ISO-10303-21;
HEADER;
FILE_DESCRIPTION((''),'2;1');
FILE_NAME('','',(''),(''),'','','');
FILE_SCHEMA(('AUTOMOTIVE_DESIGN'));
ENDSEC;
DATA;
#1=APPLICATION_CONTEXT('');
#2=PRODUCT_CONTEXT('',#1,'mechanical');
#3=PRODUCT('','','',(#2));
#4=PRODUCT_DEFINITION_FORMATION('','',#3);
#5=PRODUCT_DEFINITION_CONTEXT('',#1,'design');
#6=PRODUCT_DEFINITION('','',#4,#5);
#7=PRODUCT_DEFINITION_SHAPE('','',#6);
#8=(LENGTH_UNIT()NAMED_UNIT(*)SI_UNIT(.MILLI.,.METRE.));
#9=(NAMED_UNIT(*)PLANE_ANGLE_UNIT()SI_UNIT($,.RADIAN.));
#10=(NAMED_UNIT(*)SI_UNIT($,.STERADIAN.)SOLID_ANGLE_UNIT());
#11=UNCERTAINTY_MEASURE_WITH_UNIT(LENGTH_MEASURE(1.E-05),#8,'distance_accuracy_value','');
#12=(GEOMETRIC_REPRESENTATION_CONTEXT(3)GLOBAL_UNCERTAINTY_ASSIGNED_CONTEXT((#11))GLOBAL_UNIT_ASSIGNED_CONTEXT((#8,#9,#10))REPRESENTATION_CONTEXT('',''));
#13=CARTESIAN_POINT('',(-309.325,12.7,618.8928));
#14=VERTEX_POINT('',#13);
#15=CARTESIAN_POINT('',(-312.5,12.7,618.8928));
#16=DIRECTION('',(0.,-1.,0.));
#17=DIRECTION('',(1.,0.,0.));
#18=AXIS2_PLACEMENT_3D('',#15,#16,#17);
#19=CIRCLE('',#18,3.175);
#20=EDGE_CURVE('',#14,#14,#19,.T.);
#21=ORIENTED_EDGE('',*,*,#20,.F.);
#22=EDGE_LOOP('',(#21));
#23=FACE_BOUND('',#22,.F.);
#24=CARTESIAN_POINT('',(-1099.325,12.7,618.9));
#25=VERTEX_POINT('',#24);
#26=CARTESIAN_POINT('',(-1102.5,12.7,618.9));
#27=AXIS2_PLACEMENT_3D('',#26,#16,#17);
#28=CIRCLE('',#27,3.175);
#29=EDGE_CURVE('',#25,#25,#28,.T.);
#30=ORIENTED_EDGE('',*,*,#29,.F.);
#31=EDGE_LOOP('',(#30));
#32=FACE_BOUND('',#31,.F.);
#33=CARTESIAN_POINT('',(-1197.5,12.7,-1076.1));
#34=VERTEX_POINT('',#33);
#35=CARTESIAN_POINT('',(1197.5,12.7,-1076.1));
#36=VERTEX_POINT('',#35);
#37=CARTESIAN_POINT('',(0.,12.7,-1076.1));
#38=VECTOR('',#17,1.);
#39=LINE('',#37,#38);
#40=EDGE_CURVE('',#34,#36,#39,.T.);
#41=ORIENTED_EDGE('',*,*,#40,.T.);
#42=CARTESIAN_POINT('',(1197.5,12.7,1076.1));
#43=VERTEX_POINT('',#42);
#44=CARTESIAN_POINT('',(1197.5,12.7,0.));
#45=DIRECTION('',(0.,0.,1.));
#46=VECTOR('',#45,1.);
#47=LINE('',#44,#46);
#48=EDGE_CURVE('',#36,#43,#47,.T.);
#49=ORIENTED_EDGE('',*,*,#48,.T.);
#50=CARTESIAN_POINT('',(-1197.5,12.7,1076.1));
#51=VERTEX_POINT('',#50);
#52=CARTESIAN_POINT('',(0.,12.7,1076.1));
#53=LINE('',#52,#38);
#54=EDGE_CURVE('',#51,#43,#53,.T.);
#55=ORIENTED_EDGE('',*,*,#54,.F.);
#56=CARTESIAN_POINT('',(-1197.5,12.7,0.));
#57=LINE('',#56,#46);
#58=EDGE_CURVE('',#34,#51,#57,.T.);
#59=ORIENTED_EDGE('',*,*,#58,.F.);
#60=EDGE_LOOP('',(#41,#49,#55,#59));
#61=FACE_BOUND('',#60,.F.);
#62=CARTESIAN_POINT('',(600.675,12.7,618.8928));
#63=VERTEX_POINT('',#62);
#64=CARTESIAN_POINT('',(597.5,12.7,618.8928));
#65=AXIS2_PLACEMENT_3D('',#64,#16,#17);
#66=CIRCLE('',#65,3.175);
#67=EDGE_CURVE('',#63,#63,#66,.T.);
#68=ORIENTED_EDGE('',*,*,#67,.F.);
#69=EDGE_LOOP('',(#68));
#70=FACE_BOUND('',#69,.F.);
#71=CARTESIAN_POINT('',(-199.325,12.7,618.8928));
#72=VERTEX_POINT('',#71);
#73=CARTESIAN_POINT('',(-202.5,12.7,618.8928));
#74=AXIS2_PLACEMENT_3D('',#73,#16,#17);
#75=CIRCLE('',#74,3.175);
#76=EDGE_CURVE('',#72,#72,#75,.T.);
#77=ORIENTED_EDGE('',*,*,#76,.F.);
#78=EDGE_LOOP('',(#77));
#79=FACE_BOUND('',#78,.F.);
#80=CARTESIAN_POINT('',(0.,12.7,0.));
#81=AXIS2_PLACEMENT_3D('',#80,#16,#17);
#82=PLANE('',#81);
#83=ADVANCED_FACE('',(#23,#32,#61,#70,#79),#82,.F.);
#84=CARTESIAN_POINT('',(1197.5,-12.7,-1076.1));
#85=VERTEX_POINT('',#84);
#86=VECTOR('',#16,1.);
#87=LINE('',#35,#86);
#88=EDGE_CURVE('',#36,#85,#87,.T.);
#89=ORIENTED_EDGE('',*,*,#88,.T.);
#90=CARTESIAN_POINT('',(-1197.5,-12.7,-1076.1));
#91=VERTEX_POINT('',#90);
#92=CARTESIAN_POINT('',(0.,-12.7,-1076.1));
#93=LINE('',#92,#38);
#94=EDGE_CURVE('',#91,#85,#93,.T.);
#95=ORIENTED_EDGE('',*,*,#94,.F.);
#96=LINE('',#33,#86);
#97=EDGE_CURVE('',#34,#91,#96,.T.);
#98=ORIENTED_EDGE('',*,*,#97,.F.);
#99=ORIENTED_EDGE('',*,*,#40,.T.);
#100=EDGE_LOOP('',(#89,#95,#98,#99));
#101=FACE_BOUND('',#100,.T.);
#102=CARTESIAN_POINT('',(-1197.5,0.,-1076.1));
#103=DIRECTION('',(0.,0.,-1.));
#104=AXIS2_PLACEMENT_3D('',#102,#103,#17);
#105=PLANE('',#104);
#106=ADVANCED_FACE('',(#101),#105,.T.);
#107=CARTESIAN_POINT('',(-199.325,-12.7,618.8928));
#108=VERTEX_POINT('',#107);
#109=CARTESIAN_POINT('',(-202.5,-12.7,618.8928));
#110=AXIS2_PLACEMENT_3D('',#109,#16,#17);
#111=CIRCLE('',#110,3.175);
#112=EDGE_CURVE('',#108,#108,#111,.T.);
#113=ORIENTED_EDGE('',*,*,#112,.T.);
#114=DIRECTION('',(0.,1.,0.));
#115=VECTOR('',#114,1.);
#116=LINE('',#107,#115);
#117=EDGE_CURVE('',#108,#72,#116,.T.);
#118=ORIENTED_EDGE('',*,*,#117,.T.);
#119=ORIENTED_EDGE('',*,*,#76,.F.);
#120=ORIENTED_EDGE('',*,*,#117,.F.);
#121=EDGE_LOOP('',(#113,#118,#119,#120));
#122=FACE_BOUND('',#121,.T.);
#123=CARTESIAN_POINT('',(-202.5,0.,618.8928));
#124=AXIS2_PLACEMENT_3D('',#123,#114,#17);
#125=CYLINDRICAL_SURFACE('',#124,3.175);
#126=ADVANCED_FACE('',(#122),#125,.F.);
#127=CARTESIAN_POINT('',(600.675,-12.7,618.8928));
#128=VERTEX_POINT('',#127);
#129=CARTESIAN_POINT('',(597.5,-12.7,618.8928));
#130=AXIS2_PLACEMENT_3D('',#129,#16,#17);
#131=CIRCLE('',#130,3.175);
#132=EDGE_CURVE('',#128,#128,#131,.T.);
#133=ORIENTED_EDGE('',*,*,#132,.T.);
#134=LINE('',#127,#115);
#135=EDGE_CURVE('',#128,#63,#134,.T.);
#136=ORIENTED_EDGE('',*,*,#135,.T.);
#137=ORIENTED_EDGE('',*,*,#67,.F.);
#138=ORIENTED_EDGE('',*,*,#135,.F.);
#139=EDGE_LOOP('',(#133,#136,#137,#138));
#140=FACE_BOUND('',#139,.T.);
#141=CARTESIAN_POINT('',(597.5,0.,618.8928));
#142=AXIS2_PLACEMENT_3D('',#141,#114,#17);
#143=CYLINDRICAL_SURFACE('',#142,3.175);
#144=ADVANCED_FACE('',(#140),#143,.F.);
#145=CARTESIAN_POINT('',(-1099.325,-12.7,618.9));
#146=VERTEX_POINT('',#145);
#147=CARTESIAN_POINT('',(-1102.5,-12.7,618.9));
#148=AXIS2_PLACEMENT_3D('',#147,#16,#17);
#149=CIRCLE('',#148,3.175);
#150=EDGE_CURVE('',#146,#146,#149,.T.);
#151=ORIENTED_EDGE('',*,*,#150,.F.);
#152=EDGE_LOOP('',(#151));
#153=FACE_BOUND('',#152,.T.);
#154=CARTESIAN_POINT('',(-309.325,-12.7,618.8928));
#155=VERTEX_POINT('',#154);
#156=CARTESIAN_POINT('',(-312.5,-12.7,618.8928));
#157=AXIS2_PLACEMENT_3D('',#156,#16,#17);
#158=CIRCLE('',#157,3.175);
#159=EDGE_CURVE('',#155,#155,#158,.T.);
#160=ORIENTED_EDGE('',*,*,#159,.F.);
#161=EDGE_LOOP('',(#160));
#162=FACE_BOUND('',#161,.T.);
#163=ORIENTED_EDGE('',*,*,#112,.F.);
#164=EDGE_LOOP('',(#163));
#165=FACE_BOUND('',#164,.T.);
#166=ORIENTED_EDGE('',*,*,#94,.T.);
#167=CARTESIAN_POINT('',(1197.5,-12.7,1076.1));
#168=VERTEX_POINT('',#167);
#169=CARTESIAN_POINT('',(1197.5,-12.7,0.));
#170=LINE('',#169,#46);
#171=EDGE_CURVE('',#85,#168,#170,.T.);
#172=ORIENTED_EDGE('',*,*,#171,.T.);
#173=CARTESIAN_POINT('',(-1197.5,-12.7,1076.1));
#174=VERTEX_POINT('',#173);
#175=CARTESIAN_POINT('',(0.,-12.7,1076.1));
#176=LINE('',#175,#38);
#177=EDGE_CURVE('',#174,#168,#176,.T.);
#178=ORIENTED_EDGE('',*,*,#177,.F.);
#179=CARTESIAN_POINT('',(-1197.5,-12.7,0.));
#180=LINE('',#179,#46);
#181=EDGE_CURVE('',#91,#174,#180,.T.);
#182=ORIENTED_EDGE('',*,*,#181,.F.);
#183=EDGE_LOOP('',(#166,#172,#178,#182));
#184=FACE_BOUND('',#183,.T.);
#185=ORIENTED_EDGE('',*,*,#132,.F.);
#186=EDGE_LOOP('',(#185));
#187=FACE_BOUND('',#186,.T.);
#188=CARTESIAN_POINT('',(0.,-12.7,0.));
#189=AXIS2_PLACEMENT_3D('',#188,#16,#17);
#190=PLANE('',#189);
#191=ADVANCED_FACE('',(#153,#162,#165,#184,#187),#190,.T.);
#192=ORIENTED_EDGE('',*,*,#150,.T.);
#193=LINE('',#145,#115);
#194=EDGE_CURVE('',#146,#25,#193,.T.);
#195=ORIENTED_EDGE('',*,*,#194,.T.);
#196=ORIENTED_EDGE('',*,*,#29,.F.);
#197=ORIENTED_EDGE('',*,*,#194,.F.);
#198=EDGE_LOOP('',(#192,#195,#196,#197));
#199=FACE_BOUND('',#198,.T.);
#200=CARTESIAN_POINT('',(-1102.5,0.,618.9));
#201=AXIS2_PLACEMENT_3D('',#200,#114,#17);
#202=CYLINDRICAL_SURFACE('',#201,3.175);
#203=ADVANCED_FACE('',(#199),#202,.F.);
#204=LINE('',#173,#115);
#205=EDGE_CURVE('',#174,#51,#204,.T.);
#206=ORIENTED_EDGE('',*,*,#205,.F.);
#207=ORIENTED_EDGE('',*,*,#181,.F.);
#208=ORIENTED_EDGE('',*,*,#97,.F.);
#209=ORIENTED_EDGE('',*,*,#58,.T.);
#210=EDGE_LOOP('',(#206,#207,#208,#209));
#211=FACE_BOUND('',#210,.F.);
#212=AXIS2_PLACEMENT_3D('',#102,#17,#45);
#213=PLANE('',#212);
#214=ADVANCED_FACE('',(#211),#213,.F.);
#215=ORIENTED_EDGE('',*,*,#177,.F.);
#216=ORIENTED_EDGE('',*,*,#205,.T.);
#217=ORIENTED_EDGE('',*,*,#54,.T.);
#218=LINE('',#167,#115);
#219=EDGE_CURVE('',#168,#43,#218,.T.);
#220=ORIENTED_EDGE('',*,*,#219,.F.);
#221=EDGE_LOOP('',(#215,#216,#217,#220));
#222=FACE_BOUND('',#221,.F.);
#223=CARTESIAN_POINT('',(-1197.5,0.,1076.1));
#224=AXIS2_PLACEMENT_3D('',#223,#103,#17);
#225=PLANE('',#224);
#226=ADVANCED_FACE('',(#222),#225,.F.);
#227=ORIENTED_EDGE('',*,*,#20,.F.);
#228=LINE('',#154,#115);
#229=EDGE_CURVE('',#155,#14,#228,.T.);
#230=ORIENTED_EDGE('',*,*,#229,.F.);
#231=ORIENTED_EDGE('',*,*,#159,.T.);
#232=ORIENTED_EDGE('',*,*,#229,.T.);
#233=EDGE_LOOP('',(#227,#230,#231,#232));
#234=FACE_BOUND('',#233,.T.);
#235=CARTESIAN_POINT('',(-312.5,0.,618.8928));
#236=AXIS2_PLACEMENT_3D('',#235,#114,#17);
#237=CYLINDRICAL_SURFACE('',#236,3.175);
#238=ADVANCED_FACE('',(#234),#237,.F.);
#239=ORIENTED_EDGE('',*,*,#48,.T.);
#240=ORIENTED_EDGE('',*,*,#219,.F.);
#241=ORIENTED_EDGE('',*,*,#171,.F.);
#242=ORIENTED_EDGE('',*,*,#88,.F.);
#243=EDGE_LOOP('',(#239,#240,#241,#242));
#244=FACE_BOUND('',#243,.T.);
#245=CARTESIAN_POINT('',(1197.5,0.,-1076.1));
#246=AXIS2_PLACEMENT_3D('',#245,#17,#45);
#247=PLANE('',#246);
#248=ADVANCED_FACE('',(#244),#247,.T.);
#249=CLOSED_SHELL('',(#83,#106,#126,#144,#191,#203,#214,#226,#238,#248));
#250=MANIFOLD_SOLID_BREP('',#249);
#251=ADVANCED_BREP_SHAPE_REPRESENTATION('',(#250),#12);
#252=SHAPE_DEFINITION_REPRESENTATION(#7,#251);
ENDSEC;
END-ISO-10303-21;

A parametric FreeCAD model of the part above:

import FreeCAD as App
import Part
import Sketcher

V = App.Vector
Q = App.Units.Quantity


def add_polygon(sketch, points):
    """Adds a closed chain of lines whose ends are joined by coincident constraints."""
    first, n = sketch.GeometryCount, len(points)
    for a, b in zip(points, points[1:] + points[:1]):
        sketch.addGeometry(Part.LineSegment(App.Vector(*a, 0), App.Vector(*b, 0)), False)
    for i in range(n):
        sketch.addConstraint(Sketcher.Constraint("Coincident", first + i, 2, first + (i + 1) % n, 1))

doc = App.newDocument("Part")
body = doc.addObject("PartDesign::Body", "Body")

# Sketch on XZ plane
sketch1 = body.newObject("Sketcher::SketchObject", "Sketch")
sketch1.AttachmentSupport = (doc.getObject("XZ_Plane"), [""])
sketch1.MapMode = "FlatFace"
add_polygon(sketch1, [(-1197.5, 1076.1), (-1197.5, -1076.1), (1197.5, -1076.1), (1197.5, 1076.1)])  # lines 0-3
sketch1.addGeometry(Part.Circle(V(-312.5, 618.8928, 0), V(0, 0, 1), 3.175), False)  # 4
sketch1.addGeometry(Part.Circle(V(-202.5, 618.8928, 0), V(0, 0, 1), 3.175), False)  # 5
sketch1.addGeometry(Part.Circle(V(597.5, 618.8928, 0), V(0, 0, 1), 3.175), False)  # 6
sketch1.addGeometry(Part.Circle(V(-1102.5, 618.9, 0), V(0, 0, 1), 3.175), False)  # 7
sketch1.addConstraint(Sketcher.Constraint("Vertical", 0))
sketch1.addConstraint(Sketcher.Constraint("Horizontal", 1))
sketch1.addConstraint(Sketcher.Constraint("Vertical", 2))
sketch1.addConstraint(Sketcher.Constraint("Horizontal", 3))
sketch1.addConstraint(Sketcher.Constraint("Equal", 4, 5))
sketch1.addConstraint(Sketcher.Constraint("Equal", 5, 6))
sketch1.addConstraint(Sketcher.Constraint("Equal", 6, 7))
sketch1.addConstraint(Sketcher.Constraint("Symmetric", 0, 2, 2, 2, -1, 1))
sketch1.addConstraint(Sketcher.Constraint("Horizontal", 4, 3, 5, 3))
sketch1.addConstraint(Sketcher.Constraint("Horizontal", 5, 3, 6, 3))
sketch1.addConstraint(Sketcher.Constraint("Diameter", 4, Q("6.35 mm")))
sketch1.addConstraint(Sketcher.Constraint("DistanceX", 1, 1, 1, 2, Q("2395 mm")))
sketch1.addConstraint(Sketcher.Constraint("DistanceY", 0, 2, 0, 1, Q("2152.2 mm")))
sketch1.addConstraint(Sketcher.Constraint("DistanceX", 4, 3, 5, 3, Q("110 mm")))
sketch1.addConstraint(Sketcher.Constraint("DistanceX", 5, 3, 6, 3, Q("800 mm")))
sketch1.addConstraint(Sketcher.Constraint("DistanceX", 7, 3, 4, 3, Q("790 mm")))
sketch1.addConstraint(Sketcher.Constraint("DistanceX", 0, 2, 7, 3, Q("95 mm")))
sketch1.addConstraint(Sketcher.Constraint("DistanceY", 0, 2, 7, 3, Q("1695 mm")))
sketch1.addConstraint(Sketcher.Constraint("DistanceY", -1, 1, 4, 3, Q("618.8928 mm")))
pad1 = body.newObject("PartDesign::Pad", "Pad")
pad1.Profile = sketch1
pad1.Length = 25.4
pad1.Midplane = True

doc.recompute()
